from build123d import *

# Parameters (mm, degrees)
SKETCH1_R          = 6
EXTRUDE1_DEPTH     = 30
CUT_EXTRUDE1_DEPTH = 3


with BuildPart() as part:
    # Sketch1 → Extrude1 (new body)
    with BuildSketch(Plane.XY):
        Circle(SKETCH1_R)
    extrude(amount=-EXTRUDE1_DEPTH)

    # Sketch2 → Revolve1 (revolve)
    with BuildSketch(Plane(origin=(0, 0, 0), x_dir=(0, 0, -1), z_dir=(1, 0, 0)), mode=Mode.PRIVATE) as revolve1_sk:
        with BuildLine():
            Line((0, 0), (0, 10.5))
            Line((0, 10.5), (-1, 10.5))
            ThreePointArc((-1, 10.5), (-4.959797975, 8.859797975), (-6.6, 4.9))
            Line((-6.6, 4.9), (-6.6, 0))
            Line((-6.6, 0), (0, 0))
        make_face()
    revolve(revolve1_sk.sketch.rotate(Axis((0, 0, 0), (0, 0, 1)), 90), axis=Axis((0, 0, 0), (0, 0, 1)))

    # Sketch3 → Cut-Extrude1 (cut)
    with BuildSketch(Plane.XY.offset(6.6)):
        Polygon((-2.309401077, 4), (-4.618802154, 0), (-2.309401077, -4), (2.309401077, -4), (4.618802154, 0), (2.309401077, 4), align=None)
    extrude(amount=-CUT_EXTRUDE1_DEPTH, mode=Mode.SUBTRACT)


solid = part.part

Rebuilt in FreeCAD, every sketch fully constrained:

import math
import FreeCAD as App
import Part
import Sketcher

V = App.Vector
Q = App.Units.Quantity

doc = App.newDocument("Part")
params = doc.addObject("Spreadsheet::Sheet", "Params")
for row, (alias, value) in enumerate([
    ("sketch1_diameter", "12 mm"),
    ("pad1_length", "30 mm"),
    ("sketch2_radius", "5.6 mm"),
    ("sketch2_height", "1 mm"),
    ("sketch2_width", "10.5 mm"),
    ("revolution_angle", "360 deg"),
    ("pocket1_length", "3 mm"),
], start=1):
    params.set(f"A{row}", alias)
    params.set(f"B{row}", "=" + value)
    params.setAlias(f"B{row}", alias)

body = doc.addObject("PartDesign::Body", "Body")

# Sketch on XY plane
sketch1 = doc.addObject("Sketcher::SketchObject", "Sketch")
body.addObject(sketch1)
sketch1.AttachmentSupport = (doc.XY_Plane, [""])
sketch1.MapMode = "FlatFace"
sketch1.addGeometry(Part.Circle(V(0, 0, 0), V(0, 0, 1), 6), False)
sketch1.addConstraint(Sketcher.Constraint("Coincident", 0, 3, -1, 1))
sketch1.addConstraint(Sketcher.Constraint("Diameter", 0, Q("12 mm")))
sketch1.setExpression("Constraints[1]", "Params.sketch1_diameter")
pad1 = doc.addObject("PartDesign::Pad", "Pad")
body.addObject(pad1)
pad1.Profile = sketch1
pad1.setExpression("Length", "Params.pad1_length")
pad1.Reversed = True

# Sketch on YZ plane
sketch2 = doc.addObject("Sketcher::SketchObject", "Sketch001")
body.addObject(sketch2)
sketch2.AttachmentSupport = (doc.YZ_Plane, [""])
sketch2.MapMode = "FlatFace"
sketch2.addGeometry(Part.LineSegment(V(0, 0, 0), V(10.5, 0, 0)), False)
sketch2.addGeometry(Part.LineSegment(V(10.5, 0, 0), V(10.5, 1, 0)), False)
sketch2.addGeometry(Part.ArcOfCircle(Part.Circle(V(4.9, 1, 0), V(0, 0, 1), 5.6), math.radians(0), math.radians(90)), False)
sketch2.addGeometry(Part.LineSegment(V(4.9, 6.6, 0), V(0, 6.6, 0)), False)
sketch2.addGeometry(Part.LineSegment(V(0, 6.6, 0), V(0, 0, 0)), False)
sketch2.addConstraint(Sketcher.Constraint("Coincident", 0, 2, 1, 1))
sketch2.addConstraint(Sketcher.Constraint("Tangent", 1, 2, 2, 1))
sketch2.addConstraint(Sketcher.Constraint("Tangent", 2, 2, 3, 1))
sketch2.addConstraint(Sketcher.Constraint("Coincident", 3, 2, 4, 1))
sketch2.addConstraint(Sketcher.Constraint("Coincident", 4, 2, 0, 1))
sketch2.addConstraint(Sketcher.Constraint("Horizontal", 0))
sketch2.addConstraint(Sketcher.Constraint("Vertical", 1))
sketch2.addConstraint(Sketcher.Constraint("Horizontal", 3))
sketch2.addConstraint(Sketcher.Constraint("Vertical", 4))
sketch2.addConstraint(Sketcher.Constraint("Coincident", 4, 2, -1, 1))
sketch2.addConstraint(Sketcher.Constraint("Radius", 2, Q("5.6 mm")))
sketch2.addConstraint(Sketcher.Constraint("DistanceY", 1, 1, 1, 2, Q("1 mm")))
sketch2.addConstraint(Sketcher.Constraint("DistanceX", 0, 1, 0, 2, Q("10.5 mm")))
sketch2.setExpression("Constraints[10]", "Params.sketch2_radius")
sketch2.setExpression("Constraints[11]", "Params.sketch2_height")
sketch2.setExpression("Constraints[12]", "Params.sketch2_width")
revolution = doc.addObject("PartDesign::Revolution", "Revolution")
body.addObject(revolution)
revolution.Profile = sketch2
revolution.ReferenceAxis = (sketch2, ["V_Axis"])
revolution.setExpression("Angle", "Params.revolution_angle")

# Sketch on XY plane
sketch3 = doc.addObject("Sketcher::SketchObject", "Sketch002")
body.addObject(sketch3)
sketch3.AttachmentSupport = (doc.XY_Plane, [""])
sketch3.MapMode = "FlatFace"
sketch3.AttachmentOffset = App.Placement(V(0, 0, 6.6), App.Rotation())
sketch3.addGeometry(Part.LineSegment(V(-2.309401, 4, 0), V(-4.618802, 0, 0)), False)
sketch3.addGeometry(Part.LineSegment(V(-4.618802, 0, 0), V(-2.309401, -4, 0)), False)
sketch3.addGeometry(Part.LineSegment(V(-2.309401, -4, 0), V(2.309401, -4, 0)), False)
sketch3.addGeometry(Part.LineSegment(V(2.309401, -4, 0), V(4.618802, 0, 0)), False)
sketch3.addGeometry(Part.LineSegment(V(4.618802, 0, 0), V(2.309401, 4, 0)), False)
sketch3.addGeometry(Part.LineSegment(V(2.309401, 4, 0), V(-2.309401, 4, 0)), False)
sketch3.addConstraint(Sketcher.Constraint("Coincident", 0, 2, 1, 1))
sketch3.addConstraint(Sketcher.Constraint("Coincident", 1, 2, 2, 1))
sketch3.addConstraint(Sketcher.Constraint("Coincident", 2, 2, 3, 1))
sketch3.addConstraint(Sketcher.Constraint("Coincident", 3, 2, 4, 1))
sketch3.addConstraint(Sketcher.Constraint("Coincident", 4, 2, 5, 1))
sketch3.addConstraint(Sketcher.Constraint("Coincident", 5, 2, 0, 1))
sketch3.addConstraint(Sketcher.Constraint("Horizontal", 2))
sketch3.addConstraint(Sketcher.Constraint("Horizontal", 5))
sketch3.addConstraint(Sketcher.Constraint("Symmetric", 0, 2, 3, 2, -1, 1))
sketch3.addConstraint(Sketcher.Constraint("Symmetric", 1, 2, 4, 2, -1, 1))
sketch3.addConstraint(Sketcher.Constraint("PointOnObject", 0, 2, -1))
sketch3.addConstraint(Sketcher.Constraint("Parallel", 0, 3))
sketch3.addConstraint(Sketcher.Constraint("Vertical", 2, 2, 4, 2))
sketch3.addConstraint(Sketcher.Constraint("Angle", 0, Q("-120 deg")))
sketch3.addConstraint(Sketcher.Constraint("DistanceY", 1, 2, -1, 1, Q("4 mm")))
sketch3.addConstraint(Sketcher.Constraint("DistanceX", 1, 2, -1, 1, Q("2.309401 mm")))
pocket1 = doc.addObject("PartDesign::Pocket", "Pocket")
body.addObject(pocket1)
pocket1.Profile = sketch3
pocket1.setExpression("Length", "Params.pocket1_length")

doc.recompute()
